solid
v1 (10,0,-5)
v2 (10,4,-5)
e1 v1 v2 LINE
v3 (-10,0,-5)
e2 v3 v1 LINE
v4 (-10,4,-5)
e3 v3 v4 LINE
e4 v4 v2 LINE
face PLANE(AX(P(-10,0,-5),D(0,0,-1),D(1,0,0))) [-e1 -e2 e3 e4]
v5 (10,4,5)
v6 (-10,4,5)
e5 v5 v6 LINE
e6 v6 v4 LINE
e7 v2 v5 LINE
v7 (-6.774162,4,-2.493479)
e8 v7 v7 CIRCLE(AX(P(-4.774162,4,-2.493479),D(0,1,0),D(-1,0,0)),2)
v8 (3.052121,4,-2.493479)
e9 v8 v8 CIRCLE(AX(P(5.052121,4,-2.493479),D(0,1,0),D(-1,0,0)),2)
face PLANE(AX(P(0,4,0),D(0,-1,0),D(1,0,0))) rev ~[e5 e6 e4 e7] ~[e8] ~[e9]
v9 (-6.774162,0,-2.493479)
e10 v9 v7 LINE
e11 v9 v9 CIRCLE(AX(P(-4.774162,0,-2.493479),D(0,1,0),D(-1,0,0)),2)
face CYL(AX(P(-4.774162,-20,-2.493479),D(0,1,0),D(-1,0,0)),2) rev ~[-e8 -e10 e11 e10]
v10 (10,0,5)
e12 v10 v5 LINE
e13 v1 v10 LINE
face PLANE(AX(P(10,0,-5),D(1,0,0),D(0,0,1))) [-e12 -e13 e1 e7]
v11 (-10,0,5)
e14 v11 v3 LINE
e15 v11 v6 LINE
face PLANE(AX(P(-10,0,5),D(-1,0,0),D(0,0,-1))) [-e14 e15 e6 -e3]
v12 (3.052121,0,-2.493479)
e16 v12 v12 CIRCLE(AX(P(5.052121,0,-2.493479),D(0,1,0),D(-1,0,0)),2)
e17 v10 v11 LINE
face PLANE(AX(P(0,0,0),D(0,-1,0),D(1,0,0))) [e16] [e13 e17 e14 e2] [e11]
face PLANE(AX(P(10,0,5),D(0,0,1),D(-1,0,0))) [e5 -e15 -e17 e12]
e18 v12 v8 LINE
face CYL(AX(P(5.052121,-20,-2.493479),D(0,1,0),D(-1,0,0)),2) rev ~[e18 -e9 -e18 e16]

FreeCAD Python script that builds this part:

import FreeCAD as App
import Part
import Sketcher


def add_polygon(sketch, points):
    """Adds a closed chain of lines whose ends are joined by coincident constraints."""
    first, n = sketch.GeometryCount, len(points)
    for a, b in zip(points, points[1:] + points[:1]):
        sketch.addGeometry(Part.LineSegment(App.Vector(*a, 0), App.Vector(*b, 0)), False)
    for i in range(n):
        sketch.addConstraint(Sketcher.Constraint("Coincident", first + i, 2, first + (i + 1) % n, 1))

doc = App.newDocument("Part")
body = doc.addObject("PartDesign::Body", "Body")

sketch1 = body.newObject("Sketcher::SketchObject", "Sketch")
sketch1.AttachmentSupport = (doc.getObject("XZ_Plane"), [""])
sketch1.MapMode = "FlatFace"
add_polygon(sketch1, [(-10, -5), (10, -5), (10, 5), (-10, 5)])
sketch1.addConstraint([
    Sketcher.Constraint("Horizontal", 0),
    Sketcher.Constraint("Vertical", 1),
    Sketcher.Constraint("Horizontal", 2),
    Sketcher.Constraint("Vertical", 3),
    Sketcher.Constraint("Symmetric", 0, 2, 2, 2, -1, 1),
    Sketcher.Constraint("DistanceX", 0, 1, 0, 2, 20.0),
    Sketcher.Constraint("DistanceY", 1, 1, 1, 2, 10.0),
])
pad1 = body.newObject("PartDesign::Pad", "Pad")
pad1.Profile = sketch1
pad1.Length = 4
pad1.Reversed = True

sketch2 = body.newObject("Sketcher::SketchObject", "Sketch001")
sketch2.AttachmentSupport = (doc.getObject("XZ_Plane"), [""])
sketch2.MapMode = "FlatFace"
sketch2.addGeometry([
    Part.Circle(App.Vector(-4.8, -2.5, 0), App.Vector(0, 0, 1), 2),
    Part.Circle(App.Vector(5.1, -2.5, 0), App.Vector(0, 0, 1), 2),
], False)
sketch2.addConstraint([
    Sketcher.Constraint("Equal", 0, 1),
    Sketcher.Constraint("Horizontal", 0, 3, 1, 3),
    Sketcher.Constraint("Diameter", 0, 4.0),
    Sketcher.Constraint("DistanceX", 0, 3, -1, 1, 4.774162),
    Sketcher.Constraint("DistanceY", 0, 3, -1, 1, 2.493479),
    Sketcher.Constraint("DistanceX", -1, 1, 1, 3, 5.052121),
])
doc.recompute()
hole = body.newObject("PartDesign::Hole", "Hole")
hole.Profile = sketch2
hole.ThreadType = "None"
hole.Diameter = 4
hole.DepthType = "Dimension"
hole.Depth = 20
hole.DrillPoint = "Flat"

doc.recompute()
